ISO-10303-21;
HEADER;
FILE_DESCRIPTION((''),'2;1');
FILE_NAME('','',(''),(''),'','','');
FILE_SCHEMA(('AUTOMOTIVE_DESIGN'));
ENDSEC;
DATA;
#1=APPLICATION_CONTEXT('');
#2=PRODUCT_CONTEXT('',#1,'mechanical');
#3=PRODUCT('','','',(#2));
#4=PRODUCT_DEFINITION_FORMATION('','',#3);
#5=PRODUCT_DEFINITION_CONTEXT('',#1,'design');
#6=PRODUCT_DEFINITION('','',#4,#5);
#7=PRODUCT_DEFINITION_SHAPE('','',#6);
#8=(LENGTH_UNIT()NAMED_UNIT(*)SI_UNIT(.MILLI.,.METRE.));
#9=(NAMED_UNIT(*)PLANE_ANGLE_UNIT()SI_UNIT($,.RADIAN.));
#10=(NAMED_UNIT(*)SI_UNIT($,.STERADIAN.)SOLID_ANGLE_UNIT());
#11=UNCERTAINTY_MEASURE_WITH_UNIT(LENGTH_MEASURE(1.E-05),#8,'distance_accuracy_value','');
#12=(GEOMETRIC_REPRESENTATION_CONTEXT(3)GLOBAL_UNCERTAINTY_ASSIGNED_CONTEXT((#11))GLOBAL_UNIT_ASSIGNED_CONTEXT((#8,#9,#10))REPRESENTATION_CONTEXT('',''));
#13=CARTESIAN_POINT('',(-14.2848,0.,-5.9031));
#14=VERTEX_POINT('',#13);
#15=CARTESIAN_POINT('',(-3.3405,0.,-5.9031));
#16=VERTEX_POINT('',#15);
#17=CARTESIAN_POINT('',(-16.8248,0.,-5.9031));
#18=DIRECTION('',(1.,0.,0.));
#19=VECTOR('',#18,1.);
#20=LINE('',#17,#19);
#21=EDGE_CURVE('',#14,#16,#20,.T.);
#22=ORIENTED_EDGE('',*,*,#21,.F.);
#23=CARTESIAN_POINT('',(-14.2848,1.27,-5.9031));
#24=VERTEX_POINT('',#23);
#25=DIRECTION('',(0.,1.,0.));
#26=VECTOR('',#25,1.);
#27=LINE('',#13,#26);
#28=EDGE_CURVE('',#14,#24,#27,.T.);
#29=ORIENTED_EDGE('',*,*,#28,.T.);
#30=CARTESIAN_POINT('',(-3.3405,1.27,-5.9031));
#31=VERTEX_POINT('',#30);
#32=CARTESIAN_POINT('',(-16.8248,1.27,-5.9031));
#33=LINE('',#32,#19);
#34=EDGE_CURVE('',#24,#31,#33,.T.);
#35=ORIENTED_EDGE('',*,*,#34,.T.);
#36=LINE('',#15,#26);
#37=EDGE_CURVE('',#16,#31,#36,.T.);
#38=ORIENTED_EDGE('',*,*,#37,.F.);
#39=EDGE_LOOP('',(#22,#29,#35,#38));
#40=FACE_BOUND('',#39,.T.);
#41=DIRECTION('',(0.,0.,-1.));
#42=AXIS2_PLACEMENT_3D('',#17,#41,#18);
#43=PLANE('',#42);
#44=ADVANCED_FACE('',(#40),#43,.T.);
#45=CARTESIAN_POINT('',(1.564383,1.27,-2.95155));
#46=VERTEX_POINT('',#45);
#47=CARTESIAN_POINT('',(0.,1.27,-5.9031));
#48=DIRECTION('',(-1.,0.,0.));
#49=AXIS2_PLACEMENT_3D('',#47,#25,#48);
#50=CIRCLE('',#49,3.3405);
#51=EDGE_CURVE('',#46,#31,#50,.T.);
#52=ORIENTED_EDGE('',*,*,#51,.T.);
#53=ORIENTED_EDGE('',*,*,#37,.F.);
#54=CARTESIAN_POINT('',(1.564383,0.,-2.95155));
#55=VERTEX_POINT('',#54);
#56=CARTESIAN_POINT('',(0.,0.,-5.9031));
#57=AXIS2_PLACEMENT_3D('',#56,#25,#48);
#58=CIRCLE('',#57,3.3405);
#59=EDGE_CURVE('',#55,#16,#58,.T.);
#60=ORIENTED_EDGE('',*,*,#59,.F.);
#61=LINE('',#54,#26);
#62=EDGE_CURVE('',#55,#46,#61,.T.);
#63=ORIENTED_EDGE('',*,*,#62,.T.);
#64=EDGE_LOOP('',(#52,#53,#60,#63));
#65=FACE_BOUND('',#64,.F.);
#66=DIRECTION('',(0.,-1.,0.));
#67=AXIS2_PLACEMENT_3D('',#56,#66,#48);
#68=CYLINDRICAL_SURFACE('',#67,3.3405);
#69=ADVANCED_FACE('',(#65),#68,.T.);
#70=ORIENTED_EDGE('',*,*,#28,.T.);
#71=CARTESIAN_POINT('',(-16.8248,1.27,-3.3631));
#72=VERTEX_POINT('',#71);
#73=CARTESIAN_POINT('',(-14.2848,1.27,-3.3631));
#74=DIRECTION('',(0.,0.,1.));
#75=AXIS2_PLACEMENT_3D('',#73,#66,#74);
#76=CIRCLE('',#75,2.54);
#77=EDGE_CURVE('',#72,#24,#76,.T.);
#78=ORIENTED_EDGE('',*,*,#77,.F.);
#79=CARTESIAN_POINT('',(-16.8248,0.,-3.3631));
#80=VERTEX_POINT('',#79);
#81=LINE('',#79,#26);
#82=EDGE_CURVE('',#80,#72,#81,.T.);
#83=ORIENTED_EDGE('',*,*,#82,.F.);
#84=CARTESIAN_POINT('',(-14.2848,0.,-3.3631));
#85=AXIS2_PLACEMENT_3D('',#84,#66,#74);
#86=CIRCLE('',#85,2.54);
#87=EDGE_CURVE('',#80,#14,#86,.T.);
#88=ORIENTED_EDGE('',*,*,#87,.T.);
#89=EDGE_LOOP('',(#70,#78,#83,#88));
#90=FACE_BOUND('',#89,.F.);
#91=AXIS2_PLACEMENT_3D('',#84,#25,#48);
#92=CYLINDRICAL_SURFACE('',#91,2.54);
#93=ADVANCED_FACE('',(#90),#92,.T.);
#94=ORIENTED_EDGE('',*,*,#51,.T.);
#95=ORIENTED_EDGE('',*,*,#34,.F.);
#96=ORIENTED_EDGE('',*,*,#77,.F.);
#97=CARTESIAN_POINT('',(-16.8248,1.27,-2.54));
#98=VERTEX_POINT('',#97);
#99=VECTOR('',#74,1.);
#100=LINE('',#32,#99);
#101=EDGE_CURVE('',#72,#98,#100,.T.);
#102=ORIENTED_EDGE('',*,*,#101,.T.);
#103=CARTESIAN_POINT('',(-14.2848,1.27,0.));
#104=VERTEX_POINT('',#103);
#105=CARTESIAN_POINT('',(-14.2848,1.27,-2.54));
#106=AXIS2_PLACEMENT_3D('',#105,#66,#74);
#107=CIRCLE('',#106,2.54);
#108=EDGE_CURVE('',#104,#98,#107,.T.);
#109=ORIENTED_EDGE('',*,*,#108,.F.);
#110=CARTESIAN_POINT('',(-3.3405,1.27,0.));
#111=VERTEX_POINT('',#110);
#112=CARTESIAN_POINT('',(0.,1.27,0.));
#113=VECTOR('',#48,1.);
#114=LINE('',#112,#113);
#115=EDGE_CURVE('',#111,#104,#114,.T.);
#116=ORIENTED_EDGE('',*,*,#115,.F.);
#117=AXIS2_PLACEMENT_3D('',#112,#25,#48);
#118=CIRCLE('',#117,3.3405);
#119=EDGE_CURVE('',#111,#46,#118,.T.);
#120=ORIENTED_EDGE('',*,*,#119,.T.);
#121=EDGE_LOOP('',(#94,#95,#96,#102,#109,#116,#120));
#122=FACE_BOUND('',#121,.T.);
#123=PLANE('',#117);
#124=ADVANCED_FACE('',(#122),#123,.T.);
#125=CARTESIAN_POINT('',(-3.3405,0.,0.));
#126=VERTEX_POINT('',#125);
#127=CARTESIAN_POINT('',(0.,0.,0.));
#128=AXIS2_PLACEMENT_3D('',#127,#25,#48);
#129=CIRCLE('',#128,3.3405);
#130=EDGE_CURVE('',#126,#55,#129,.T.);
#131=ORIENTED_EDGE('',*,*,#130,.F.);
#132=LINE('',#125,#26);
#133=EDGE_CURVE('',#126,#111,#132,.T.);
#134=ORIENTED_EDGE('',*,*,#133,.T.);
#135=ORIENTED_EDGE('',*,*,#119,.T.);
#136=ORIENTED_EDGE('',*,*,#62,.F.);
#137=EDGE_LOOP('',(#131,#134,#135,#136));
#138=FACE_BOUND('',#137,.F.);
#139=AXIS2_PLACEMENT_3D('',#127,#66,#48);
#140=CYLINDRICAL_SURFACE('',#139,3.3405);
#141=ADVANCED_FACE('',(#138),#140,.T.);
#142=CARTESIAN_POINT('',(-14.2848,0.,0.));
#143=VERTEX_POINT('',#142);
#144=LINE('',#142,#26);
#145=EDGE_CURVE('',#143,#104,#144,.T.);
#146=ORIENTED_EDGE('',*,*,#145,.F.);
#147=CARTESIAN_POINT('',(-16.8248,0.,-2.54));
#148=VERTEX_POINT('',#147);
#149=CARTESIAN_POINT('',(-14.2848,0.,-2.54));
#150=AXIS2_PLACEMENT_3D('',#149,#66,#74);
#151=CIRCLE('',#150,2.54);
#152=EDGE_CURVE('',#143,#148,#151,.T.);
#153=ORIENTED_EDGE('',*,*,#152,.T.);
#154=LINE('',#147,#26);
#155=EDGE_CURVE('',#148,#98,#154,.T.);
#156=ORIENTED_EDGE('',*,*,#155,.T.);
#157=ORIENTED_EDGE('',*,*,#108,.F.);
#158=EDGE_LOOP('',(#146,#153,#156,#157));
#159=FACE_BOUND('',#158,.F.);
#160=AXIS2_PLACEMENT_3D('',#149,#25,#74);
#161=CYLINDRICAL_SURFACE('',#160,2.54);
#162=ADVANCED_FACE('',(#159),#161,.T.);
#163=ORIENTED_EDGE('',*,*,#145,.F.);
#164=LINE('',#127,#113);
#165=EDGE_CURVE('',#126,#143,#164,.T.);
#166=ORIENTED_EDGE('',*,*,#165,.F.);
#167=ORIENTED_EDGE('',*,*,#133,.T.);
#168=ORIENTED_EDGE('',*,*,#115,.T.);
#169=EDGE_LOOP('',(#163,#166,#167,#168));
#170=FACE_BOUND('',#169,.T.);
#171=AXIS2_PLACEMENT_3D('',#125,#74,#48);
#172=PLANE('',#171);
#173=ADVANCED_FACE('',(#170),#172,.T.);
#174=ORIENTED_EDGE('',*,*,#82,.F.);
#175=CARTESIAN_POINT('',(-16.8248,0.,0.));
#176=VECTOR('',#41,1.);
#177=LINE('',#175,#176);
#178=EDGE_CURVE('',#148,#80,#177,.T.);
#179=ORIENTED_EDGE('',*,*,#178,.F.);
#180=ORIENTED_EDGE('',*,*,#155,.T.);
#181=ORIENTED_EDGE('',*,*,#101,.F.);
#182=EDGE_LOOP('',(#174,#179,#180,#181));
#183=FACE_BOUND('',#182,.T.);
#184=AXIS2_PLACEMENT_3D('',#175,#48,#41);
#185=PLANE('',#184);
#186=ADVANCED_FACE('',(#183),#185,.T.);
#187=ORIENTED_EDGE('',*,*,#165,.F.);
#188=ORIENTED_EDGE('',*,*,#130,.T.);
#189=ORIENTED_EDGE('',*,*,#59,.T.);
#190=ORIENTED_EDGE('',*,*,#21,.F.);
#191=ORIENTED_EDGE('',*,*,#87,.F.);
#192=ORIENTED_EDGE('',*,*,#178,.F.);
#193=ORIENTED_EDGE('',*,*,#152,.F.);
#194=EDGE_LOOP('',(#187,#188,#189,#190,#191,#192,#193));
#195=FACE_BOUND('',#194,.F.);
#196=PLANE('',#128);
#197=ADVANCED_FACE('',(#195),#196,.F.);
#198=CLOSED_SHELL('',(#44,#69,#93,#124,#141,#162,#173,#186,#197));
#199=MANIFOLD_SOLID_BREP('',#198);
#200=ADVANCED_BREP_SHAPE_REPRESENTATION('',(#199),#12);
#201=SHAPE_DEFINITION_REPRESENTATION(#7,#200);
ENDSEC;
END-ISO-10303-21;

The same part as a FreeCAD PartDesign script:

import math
import FreeCAD as App
import Part
import Sketcher
from FreeCAD import Vector
Q = App.Units.Quantity


def edges_at(feature, points):
    """Names of the edges that pass closest to the given points."""
    edges = feature.Shape.Edges
    near = lambda p: min(range(len(edges)), key=lambda i: edges[i].distToShape(Part.Vertex(*p))[0])
    return sorted({f"Edge{near(p) + 1}" for p in points})

doc = App.newDocument("Part")
body = doc.addObject("PartDesign::Body", "Body")

sketch1 = body.newObject("Sketcher::SketchObject", "Sketch")
sketch1.AttachmentSupport = (doc.getObject("XZ_Plane"), [""])
sketch1.MapMode = "FlatFace"
sketch1.addGeometry([
    Part.ArcOfCircle(Part.Circle(Vector(0, 0, 0), Vector(0, 0, 1), 3.3), math.radians(-62), math.radians(180)),
    Part.ArcOfCircle(Part.Circle(Vector(0, -5.9, 0), Vector(0, 0, 1), 3.3), math.radians(180), math.radians(422)),
    Part.LineSegment(Vector(-3.3, -5.9, 0), Vector(-16.8, -5.9, 0)),
    Part.LineSegment(Vector(-16.8, -5.9, 0), Vector(-16.8, 0, 0)),
    Part.LineSegment(Vector(-16.8, 0, 0), Vector(-3.3, 0, 0)),
], False)
sketch1.addConstraint([
    Sketcher.Constraint("Coincident", 0, 1, 1, 2),
    Sketcher.Constraint("Coincident", 1, 1, 2, 1),
    Sketcher.Constraint("Coincident", 2, 2, 3, 1),
    Sketcher.Constraint("Coincident", 3, 2, 4, 1),
    Sketcher.Constraint("Coincident", 4, 2, 0, 2),
    Sketcher.Constraint("Horizontal", 2),
    Sketcher.Constraint("Vertical", 3),
    Sketcher.Constraint("Horizontal", 4),
    Sketcher.Constraint("Coincident", 0, 3, -1, 1),
    Sketcher.Constraint("Equal", 0, 1),
    Sketcher.Constraint("PointOnObject", 1, 3, -2),
    Sketcher.Constraint("PointOnObject", 3, 2, -1),
    Sketcher.Constraint("Radius", 0, 3.3405),
    Sketcher.Constraint("DistanceY", 3, 1, 3, 2, Q("0.2324 in")),
    Sketcher.Constraint("DistanceX", 2, 2, 2, 1, 13.4843),
    Sketcher.Constraint("DistanceY", 1, 3, -1, 1, Q("0.2324 in")),
])
pad1 = body.newObject("PartDesign::Pad", "Pad")
pad1.Profile = sketch1
pad1.Length = Q("0.05 in")
pad1.Reversed = True
doc.recompute()

fillet = body.newObject("PartDesign::Fillet", "Fillet")
fillet.Base = (pad1, edges_at(pad1, [(-16.825, 0.635, 0), (-16.825, 0.635, -5.903)]))
fillet.Radius = Q("0.1 in")

doc.recompute()
